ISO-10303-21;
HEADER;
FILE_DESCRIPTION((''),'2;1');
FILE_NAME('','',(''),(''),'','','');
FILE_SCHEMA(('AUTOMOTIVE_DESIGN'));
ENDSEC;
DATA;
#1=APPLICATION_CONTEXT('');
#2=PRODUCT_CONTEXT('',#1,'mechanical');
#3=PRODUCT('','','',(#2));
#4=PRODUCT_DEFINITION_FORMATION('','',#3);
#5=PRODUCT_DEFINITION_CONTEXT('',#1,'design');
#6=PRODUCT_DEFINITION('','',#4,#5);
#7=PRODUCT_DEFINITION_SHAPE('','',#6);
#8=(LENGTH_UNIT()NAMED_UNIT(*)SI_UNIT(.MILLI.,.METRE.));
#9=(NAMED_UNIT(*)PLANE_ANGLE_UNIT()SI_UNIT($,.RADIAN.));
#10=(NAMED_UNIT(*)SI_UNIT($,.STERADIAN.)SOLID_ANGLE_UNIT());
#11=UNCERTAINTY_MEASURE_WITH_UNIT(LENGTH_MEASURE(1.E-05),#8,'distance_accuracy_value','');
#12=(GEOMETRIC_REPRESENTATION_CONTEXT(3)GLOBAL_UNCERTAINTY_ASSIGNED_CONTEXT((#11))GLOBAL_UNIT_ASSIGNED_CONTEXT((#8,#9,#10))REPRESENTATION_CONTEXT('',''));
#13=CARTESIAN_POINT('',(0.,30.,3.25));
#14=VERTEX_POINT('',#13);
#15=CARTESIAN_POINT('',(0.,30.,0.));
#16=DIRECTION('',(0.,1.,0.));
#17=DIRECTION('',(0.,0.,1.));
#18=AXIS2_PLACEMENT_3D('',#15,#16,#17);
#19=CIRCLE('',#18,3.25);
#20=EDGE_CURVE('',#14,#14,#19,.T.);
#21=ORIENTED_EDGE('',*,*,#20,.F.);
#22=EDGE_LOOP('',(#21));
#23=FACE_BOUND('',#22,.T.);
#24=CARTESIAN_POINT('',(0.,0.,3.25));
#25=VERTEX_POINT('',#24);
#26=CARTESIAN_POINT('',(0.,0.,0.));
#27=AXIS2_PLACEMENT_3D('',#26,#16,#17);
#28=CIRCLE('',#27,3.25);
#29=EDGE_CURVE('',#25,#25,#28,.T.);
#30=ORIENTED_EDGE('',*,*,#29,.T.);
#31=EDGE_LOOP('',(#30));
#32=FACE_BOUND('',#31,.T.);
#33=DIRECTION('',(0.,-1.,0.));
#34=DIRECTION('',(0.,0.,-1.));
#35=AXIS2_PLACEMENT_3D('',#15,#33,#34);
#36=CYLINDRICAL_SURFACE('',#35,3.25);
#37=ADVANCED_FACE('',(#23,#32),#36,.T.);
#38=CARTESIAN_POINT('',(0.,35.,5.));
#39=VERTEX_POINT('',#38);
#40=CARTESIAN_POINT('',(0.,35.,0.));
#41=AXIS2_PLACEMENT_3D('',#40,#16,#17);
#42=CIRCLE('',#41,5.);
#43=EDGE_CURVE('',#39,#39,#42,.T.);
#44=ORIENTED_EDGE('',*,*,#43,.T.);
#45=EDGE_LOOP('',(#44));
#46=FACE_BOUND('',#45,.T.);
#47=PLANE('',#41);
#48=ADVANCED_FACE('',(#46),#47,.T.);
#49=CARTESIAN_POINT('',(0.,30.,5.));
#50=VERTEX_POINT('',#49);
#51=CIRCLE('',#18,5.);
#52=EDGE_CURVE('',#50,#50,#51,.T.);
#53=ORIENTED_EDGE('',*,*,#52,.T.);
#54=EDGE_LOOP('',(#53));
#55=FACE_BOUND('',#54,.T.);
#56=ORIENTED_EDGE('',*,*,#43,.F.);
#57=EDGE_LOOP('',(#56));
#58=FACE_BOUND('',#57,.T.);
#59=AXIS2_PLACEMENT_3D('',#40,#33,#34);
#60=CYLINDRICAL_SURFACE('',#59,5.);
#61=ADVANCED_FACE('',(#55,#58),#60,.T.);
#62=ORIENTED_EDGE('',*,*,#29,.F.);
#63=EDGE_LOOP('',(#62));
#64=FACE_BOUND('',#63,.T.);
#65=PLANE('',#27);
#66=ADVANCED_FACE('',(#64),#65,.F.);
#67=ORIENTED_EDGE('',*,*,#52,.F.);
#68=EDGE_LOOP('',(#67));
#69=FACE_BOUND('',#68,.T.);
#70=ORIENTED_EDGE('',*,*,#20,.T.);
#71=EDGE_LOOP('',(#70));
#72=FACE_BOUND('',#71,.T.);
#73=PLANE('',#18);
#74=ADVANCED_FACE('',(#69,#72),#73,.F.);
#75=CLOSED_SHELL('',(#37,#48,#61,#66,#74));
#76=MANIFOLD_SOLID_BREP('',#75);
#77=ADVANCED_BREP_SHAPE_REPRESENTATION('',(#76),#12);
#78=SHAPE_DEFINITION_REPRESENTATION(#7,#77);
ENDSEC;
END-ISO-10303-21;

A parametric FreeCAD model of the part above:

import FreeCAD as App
import Part
import Sketcher
from FreeCAD import Vector
Q = App.Units.Quantity

doc = App.newDocument("Part")
body = doc.addObject("PartDesign::Body", "Body")

sketch1 = doc.addObject("Sketcher::SketchObject", "Sketch")
body.addObject(sketch1)
sketch1.AttachmentSupport = (doc.XZ_Plane, [""])
sketch1.MapMode = "FlatFace"
sketch1.addGeometry(Part.Circle(Vector(0, 0, 0), Vector(0, 0, 1), 3.2), False)
sketch1.addConstraint(Sketcher.Constraint("Coincident", 0, 3, -1, 1))
sketch1.addConstraint(Sketcher.Constraint("Diameter", 0, Q("6.5 mm")))
pad1 = doc.addObject("PartDesign::Pad", "Pad")
body.addObject(pad1)
pad1.Profile = sketch1
pad1.Length = 30
pad1.Reversed = True

sketch2 = doc.addObject("Sketcher::SketchObject", "Sketch001")
body.addObject(sketch2)
sketch2.AttachmentSupport = (doc.XZ_Plane, [""])
sketch2.MapMode = "FlatFace"
sketch2.AttachmentOffset = App.Placement(Vector(0, 0, -30), App.Rotation())
sketch2.addGeometry(Part.Circle(Vector(0, 0, 0), Vector(0, 0, 1), 5), False)
sketch2.addConstraint(Sketcher.Constraint("Coincident", 0, 3, -1, 1))
sketch2.addConstraint(Sketcher.Constraint("Diameter", 0, Q("10 mm")))
pad2 = doc.addObject("PartDesign::Pad", "Pad001")
body.addObject(pad2)
pad2.Profile = sketch2
pad2.Length = 5
pad2.Reversed = True

doc.recompute()
